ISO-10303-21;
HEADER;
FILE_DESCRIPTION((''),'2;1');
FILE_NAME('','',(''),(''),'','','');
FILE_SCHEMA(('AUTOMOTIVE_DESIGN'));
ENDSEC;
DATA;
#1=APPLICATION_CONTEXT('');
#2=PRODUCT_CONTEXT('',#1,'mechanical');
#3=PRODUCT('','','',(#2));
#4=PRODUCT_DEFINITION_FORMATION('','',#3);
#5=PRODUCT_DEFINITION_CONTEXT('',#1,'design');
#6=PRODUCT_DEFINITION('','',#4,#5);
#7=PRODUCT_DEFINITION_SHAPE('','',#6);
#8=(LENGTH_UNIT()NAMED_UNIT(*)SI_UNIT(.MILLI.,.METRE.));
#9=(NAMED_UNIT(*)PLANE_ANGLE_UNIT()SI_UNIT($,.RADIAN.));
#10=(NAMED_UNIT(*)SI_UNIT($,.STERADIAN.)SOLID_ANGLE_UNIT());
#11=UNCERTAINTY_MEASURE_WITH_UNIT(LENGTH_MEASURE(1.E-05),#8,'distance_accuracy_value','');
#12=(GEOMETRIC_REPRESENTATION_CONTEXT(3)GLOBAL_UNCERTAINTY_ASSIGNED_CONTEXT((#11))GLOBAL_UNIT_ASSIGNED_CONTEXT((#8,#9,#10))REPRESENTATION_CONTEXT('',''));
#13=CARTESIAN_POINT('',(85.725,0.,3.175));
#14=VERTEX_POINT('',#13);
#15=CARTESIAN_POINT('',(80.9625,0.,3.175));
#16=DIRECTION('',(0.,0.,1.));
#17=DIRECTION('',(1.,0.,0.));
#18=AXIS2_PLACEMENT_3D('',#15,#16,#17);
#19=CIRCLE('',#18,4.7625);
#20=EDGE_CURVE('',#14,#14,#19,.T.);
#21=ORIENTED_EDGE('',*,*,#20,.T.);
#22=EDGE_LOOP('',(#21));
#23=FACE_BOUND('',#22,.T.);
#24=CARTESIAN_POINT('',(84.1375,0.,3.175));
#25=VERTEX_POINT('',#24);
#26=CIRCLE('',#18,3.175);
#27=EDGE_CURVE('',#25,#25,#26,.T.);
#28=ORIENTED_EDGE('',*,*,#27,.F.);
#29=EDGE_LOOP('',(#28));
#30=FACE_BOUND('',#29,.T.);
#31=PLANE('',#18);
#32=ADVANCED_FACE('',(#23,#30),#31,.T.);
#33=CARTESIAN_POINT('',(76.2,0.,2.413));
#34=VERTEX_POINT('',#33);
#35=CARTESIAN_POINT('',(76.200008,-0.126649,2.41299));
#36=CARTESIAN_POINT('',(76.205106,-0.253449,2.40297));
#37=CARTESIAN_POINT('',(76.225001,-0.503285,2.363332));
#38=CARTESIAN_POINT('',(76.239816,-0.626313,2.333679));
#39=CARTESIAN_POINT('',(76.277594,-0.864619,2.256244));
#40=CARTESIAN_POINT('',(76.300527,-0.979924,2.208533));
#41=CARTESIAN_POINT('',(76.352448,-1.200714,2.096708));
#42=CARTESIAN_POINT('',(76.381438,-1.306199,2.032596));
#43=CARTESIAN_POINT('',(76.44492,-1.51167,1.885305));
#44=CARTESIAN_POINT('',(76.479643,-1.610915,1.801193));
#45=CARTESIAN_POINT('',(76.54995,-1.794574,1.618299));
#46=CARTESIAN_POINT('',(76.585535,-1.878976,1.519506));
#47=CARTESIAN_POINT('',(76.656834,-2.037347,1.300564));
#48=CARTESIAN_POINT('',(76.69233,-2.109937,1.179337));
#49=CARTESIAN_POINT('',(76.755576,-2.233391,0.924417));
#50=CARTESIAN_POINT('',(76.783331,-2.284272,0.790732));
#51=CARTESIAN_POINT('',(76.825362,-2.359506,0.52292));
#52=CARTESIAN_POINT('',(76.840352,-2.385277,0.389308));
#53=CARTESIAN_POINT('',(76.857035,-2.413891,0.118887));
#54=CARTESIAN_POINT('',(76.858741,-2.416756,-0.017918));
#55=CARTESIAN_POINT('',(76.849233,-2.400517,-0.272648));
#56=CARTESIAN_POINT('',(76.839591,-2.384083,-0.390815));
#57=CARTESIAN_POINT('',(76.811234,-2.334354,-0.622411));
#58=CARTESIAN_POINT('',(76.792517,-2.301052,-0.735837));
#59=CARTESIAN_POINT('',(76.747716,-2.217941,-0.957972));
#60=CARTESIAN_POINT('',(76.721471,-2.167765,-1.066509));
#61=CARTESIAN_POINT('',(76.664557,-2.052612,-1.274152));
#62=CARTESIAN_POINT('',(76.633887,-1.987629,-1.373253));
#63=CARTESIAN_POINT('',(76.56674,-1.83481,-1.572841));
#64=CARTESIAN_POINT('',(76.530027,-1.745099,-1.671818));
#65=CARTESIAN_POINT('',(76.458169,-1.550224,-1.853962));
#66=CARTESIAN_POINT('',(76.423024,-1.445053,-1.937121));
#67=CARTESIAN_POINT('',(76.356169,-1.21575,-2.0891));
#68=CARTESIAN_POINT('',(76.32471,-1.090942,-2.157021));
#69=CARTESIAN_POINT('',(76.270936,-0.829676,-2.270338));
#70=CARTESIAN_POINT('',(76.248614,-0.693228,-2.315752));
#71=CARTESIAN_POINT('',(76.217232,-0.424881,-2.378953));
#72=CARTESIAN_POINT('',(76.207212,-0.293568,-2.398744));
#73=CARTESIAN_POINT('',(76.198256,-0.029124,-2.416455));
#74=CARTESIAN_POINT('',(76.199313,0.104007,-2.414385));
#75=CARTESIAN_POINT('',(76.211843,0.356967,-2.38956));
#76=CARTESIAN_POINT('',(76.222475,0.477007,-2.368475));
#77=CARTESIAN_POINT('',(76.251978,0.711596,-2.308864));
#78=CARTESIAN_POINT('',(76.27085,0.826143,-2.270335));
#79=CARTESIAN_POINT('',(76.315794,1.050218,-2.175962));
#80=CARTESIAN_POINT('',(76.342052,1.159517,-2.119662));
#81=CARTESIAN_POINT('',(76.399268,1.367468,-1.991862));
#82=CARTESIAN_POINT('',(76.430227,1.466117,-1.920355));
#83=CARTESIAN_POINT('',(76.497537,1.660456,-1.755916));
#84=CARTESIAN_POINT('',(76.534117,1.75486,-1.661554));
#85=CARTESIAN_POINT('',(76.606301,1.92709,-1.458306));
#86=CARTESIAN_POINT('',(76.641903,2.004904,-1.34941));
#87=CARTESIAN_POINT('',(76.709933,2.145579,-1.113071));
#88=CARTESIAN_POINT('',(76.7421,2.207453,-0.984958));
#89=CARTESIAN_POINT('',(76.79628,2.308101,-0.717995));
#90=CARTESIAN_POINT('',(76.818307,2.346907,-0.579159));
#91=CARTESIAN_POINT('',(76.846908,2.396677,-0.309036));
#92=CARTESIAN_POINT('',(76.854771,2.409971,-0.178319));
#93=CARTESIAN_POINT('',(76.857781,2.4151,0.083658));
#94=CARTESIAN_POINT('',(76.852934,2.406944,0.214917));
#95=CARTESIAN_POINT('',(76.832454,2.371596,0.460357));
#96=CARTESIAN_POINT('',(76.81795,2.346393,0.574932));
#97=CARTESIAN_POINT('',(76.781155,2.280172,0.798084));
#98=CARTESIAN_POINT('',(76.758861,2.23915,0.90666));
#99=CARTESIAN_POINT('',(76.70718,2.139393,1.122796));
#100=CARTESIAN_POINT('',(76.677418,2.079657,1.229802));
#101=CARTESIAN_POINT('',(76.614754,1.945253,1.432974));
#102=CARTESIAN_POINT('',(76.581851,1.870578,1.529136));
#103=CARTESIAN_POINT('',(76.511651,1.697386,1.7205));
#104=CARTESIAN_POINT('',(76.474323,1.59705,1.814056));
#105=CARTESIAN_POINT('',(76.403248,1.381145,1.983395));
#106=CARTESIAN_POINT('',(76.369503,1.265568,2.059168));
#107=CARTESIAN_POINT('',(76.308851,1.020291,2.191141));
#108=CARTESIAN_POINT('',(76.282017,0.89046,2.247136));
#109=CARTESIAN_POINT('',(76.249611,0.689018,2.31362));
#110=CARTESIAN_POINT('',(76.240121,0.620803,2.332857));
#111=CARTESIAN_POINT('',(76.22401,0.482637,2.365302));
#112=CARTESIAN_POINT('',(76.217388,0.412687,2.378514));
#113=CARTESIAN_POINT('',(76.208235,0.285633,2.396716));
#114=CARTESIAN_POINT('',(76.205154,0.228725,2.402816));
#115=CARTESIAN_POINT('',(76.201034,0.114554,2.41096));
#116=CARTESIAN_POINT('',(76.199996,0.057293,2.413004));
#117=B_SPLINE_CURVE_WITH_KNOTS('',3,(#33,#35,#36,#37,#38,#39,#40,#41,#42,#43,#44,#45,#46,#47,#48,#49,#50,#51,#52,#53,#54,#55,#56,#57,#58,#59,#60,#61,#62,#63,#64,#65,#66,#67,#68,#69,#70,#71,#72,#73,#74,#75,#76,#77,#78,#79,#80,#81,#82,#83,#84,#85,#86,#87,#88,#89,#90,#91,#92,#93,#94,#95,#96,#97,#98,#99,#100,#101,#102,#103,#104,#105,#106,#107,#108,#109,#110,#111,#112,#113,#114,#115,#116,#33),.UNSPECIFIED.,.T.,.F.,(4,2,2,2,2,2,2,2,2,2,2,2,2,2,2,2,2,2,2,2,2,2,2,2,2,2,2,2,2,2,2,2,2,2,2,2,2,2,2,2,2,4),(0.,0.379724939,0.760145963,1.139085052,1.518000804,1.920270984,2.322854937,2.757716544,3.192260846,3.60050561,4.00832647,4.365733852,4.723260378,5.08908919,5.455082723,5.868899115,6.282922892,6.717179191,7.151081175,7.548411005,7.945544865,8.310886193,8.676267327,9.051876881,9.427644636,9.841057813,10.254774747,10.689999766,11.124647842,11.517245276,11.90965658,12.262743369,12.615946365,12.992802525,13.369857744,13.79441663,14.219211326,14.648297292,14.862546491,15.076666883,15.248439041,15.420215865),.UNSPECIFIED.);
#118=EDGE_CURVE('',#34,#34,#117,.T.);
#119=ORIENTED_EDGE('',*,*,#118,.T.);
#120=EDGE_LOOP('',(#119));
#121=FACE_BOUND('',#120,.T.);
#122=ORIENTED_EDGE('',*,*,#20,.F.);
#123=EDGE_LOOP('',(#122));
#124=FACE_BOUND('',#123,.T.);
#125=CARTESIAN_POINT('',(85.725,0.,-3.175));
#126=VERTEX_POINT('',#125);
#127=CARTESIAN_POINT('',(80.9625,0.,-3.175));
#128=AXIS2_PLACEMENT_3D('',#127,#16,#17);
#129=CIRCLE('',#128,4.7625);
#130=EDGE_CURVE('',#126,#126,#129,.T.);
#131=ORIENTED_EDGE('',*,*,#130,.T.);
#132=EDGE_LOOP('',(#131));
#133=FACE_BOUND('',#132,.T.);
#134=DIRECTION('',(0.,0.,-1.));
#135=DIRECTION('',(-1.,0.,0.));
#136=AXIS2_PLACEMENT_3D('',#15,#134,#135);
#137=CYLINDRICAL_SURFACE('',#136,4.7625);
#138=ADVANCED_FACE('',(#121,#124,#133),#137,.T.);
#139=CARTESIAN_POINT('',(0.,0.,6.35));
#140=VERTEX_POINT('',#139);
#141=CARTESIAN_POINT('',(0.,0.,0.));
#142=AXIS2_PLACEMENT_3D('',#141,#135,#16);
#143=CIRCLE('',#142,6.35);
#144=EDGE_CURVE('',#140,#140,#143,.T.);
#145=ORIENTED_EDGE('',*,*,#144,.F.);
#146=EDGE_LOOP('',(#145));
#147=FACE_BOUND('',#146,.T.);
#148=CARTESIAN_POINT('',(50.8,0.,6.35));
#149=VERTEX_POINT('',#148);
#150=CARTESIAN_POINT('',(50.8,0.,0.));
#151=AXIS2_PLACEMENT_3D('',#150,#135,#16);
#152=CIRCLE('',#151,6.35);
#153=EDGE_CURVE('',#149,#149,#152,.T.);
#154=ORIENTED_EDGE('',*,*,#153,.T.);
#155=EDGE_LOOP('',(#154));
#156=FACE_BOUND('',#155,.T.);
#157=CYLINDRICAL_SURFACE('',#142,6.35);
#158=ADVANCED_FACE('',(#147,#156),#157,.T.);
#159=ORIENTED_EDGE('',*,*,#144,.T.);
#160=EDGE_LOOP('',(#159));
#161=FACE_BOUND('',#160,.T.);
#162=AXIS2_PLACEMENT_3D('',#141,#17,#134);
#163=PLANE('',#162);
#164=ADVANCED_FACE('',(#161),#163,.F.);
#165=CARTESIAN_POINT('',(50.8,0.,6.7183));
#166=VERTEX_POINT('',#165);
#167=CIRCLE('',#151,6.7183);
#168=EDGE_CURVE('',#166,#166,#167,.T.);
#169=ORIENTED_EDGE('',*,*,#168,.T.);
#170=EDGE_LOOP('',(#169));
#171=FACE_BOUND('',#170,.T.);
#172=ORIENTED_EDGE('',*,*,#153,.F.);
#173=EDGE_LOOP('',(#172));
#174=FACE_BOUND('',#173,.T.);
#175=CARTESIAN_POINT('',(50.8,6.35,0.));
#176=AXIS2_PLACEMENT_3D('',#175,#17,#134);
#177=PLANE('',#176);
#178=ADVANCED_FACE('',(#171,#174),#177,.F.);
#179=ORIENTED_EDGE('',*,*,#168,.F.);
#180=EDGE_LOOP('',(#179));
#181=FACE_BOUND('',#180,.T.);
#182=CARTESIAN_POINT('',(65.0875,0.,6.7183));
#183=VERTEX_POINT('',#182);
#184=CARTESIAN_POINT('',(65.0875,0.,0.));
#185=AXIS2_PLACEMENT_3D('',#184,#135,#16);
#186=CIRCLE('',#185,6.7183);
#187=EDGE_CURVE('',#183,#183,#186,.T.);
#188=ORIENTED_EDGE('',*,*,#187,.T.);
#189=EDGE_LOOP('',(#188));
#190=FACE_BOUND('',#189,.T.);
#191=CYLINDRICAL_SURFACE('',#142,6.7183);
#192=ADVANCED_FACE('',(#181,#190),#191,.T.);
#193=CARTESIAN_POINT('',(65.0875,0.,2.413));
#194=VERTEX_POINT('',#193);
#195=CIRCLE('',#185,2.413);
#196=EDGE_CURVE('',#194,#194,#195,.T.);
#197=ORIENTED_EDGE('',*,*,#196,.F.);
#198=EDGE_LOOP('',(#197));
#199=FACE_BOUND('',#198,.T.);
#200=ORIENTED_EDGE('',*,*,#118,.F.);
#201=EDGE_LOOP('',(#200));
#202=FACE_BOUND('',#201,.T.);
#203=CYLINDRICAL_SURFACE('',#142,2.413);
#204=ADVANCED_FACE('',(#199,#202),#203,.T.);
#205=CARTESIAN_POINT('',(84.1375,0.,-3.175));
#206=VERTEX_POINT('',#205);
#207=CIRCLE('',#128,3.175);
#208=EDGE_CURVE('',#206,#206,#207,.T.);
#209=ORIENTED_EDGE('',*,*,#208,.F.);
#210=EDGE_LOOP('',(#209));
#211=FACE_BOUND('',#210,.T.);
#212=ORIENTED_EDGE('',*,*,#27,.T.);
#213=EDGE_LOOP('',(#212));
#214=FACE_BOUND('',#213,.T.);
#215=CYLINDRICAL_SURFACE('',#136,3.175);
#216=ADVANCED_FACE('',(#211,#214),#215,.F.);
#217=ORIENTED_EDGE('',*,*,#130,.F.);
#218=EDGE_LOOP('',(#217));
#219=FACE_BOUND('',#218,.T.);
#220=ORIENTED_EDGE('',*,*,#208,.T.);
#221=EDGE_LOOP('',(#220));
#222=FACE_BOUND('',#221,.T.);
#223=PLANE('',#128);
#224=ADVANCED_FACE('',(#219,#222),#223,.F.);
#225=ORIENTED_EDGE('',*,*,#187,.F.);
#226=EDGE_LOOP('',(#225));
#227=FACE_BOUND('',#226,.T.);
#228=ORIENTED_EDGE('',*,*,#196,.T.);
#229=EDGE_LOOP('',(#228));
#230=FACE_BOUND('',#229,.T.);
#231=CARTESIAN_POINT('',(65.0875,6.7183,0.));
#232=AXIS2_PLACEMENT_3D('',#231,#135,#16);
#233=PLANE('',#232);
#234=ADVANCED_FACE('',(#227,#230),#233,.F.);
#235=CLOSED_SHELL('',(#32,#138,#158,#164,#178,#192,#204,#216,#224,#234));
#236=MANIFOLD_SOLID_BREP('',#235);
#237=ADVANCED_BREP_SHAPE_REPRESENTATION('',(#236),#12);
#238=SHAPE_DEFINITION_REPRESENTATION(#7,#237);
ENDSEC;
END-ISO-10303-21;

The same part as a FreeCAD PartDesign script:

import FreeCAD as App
import Part
import Sketcher
Q = App.Units.Quantity

doc = App.newDocument("Part")
body = doc.addObject("PartDesign::Body", "Body")

# Sketch on XY plane
sketch1 = body.newObject("Sketcher::SketchObject", "Sketch")
sketch1.AttachmentSupport = (doc.getObject("XY_Plane"), [""])
sketch1.MapMode = "FlatFace"
sketch1.addGeometry(Part.LineSegment(App.Vector(0, 6.35, 0), App.Vector(0, 0, 0)), False)
sketch1.addGeometry(Part.LineSegment(App.Vector(0, 0, 0), App.Vector(77.79, 0, 0)), False)
sketch1.addGeometry(Part.LineSegment(App.Vector(77.79, 0, 0), App.Vector(77.79, 2.41, 0)), False)
sketch1.addGeometry(Part.LineSegment(App.Vector(77.79, 2.41, 0), App.Vector(65.09, 2.41, 0)), False)
sketch1.addGeometry(Part.LineSegment(App.Vector(65.09, 2.41, 0), App.Vector(65.09, 6.72, 0)), False)
sketch1.addGeometry(Part.LineSegment(App.Vector(65.09, 6.72, 0), App.Vector(50.8, 6.72, 0)), False)
sketch1.addGeometry(Part.LineSegment(App.Vector(50.8, 6.72, 0), App.Vector(50.8, 6.35, 0)), False)
sketch1.addGeometry(Part.LineSegment(App.Vector(50.8, 6.35, 0), App.Vector(0, 6.35, 0)), False)
sketch1.addConstraint(Sketcher.Constraint("Coincident", 0, 2, 1, 1))
sketch1.addConstraint(Sketcher.Constraint("Coincident", 1, 2, 2, 1))
sketch1.addConstraint(Sketcher.Constraint("Coincident", 2, 2, 3, 1))
sketch1.addConstraint(Sketcher.Constraint("Coincident", 3, 2, 4, 1))
sketch1.addConstraint(Sketcher.Constraint("Coincident", 4, 2, 5, 1))
sketch1.addConstraint(Sketcher.Constraint("Coincident", 5, 2, 6, 1))
sketch1.addConstraint(Sketcher.Constraint("Coincident", 6, 2, 7, 1))
sketch1.addConstraint(Sketcher.Constraint("Coincident", 7, 2, 0, 1))
sketch1.addConstraint(Sketcher.Constraint("Vertical", 0))
sketch1.addConstraint(Sketcher.Constraint("Horizontal", 1))
sketch1.addConstraint(Sketcher.Constraint("Vertical", 2))
sketch1.addConstraint(Sketcher.Constraint("Horizontal", 3))
sketch1.addConstraint(Sketcher.Constraint("Vertical", 4))
sketch1.addConstraint(Sketcher.Constraint("Horizontal", 5))
sketch1.addConstraint(Sketcher.Constraint("Vertical", 6))
sketch1.addConstraint(Sketcher.Constraint("Horizontal", 7))
sketch1.addConstraint(Sketcher.Constraint("Coincident", 0, 2, -1, 1))
sketch1.addConstraint(Sketcher.Constraint("DistanceX", 7, 2, 7, 1, Q("2 in")))
sketch1.addConstraint(Sketcher.Constraint("DistanceX", 3, 2, 3, 1, Q("0.5 in")))
sketch1.addConstraint(Sketcher.Constraint("DistanceY", 0, 2, 0, 1, Q("0.25 in")))
sketch1.addConstraint(Sketcher.Constraint("DistanceX", 1, 1, 1, 2, Q("3.0625 in")))
sketch1.addConstraint(Sketcher.Constraint("DistanceY", 2, 1, 2, 2, Q("0.095 in")))
sketch1.addConstraint(Sketcher.Constraint("DistanceY", 4, 1, 4, 2, Q("0.1695 in")))
revolution = body.newObject("PartDesign::Revolution", "Revolution")
revolution.Profile = sketch1
revolution.ReferenceAxis = (sketch1, ["H_Axis"])
revolution.Angle = 360

# Sketch on XY plane
sketch2 = body.newObject("Sketcher::SketchObject", "Sketch001")
sketch2.AttachmentSupport = (doc.getObject("XY_Plane"), [""])
sketch2.MapMode = "FlatFace"
sketch2.addGeometry(Part.Circle(App.Vector(81, 0, 0), App.Vector(0, 0, 1), 4.8), False)
sketch2.addGeometry(Part.Circle(App.Vector(81, 0, 0), App.Vector(0, 0, 1), 3.2), False)
sketch2.addConstraint(Sketcher.Constraint("Coincident", 1, 3, 0, 3))
sketch2.addConstraint(Sketcher.Constraint("PointOnObject", 0, 3, -1))
sketch2.addConstraint(Sketcher.Constraint("Diameter", 1, Q("0.25 in")))
sketch2.addConstraint(Sketcher.Constraint("Diameter", 0, Q("0.375 in")))
sketch2.addConstraint(Sketcher.Constraint("DistanceX", -1, 1, 0, 3, Q("3.1875 in")))
pad1 = body.newObject("PartDesign::Pad", "Pad")
pad1.Profile = sketch2
pad1.Length = Q("0.25 in")
pad1.Midplane = True

doc.recompute()
